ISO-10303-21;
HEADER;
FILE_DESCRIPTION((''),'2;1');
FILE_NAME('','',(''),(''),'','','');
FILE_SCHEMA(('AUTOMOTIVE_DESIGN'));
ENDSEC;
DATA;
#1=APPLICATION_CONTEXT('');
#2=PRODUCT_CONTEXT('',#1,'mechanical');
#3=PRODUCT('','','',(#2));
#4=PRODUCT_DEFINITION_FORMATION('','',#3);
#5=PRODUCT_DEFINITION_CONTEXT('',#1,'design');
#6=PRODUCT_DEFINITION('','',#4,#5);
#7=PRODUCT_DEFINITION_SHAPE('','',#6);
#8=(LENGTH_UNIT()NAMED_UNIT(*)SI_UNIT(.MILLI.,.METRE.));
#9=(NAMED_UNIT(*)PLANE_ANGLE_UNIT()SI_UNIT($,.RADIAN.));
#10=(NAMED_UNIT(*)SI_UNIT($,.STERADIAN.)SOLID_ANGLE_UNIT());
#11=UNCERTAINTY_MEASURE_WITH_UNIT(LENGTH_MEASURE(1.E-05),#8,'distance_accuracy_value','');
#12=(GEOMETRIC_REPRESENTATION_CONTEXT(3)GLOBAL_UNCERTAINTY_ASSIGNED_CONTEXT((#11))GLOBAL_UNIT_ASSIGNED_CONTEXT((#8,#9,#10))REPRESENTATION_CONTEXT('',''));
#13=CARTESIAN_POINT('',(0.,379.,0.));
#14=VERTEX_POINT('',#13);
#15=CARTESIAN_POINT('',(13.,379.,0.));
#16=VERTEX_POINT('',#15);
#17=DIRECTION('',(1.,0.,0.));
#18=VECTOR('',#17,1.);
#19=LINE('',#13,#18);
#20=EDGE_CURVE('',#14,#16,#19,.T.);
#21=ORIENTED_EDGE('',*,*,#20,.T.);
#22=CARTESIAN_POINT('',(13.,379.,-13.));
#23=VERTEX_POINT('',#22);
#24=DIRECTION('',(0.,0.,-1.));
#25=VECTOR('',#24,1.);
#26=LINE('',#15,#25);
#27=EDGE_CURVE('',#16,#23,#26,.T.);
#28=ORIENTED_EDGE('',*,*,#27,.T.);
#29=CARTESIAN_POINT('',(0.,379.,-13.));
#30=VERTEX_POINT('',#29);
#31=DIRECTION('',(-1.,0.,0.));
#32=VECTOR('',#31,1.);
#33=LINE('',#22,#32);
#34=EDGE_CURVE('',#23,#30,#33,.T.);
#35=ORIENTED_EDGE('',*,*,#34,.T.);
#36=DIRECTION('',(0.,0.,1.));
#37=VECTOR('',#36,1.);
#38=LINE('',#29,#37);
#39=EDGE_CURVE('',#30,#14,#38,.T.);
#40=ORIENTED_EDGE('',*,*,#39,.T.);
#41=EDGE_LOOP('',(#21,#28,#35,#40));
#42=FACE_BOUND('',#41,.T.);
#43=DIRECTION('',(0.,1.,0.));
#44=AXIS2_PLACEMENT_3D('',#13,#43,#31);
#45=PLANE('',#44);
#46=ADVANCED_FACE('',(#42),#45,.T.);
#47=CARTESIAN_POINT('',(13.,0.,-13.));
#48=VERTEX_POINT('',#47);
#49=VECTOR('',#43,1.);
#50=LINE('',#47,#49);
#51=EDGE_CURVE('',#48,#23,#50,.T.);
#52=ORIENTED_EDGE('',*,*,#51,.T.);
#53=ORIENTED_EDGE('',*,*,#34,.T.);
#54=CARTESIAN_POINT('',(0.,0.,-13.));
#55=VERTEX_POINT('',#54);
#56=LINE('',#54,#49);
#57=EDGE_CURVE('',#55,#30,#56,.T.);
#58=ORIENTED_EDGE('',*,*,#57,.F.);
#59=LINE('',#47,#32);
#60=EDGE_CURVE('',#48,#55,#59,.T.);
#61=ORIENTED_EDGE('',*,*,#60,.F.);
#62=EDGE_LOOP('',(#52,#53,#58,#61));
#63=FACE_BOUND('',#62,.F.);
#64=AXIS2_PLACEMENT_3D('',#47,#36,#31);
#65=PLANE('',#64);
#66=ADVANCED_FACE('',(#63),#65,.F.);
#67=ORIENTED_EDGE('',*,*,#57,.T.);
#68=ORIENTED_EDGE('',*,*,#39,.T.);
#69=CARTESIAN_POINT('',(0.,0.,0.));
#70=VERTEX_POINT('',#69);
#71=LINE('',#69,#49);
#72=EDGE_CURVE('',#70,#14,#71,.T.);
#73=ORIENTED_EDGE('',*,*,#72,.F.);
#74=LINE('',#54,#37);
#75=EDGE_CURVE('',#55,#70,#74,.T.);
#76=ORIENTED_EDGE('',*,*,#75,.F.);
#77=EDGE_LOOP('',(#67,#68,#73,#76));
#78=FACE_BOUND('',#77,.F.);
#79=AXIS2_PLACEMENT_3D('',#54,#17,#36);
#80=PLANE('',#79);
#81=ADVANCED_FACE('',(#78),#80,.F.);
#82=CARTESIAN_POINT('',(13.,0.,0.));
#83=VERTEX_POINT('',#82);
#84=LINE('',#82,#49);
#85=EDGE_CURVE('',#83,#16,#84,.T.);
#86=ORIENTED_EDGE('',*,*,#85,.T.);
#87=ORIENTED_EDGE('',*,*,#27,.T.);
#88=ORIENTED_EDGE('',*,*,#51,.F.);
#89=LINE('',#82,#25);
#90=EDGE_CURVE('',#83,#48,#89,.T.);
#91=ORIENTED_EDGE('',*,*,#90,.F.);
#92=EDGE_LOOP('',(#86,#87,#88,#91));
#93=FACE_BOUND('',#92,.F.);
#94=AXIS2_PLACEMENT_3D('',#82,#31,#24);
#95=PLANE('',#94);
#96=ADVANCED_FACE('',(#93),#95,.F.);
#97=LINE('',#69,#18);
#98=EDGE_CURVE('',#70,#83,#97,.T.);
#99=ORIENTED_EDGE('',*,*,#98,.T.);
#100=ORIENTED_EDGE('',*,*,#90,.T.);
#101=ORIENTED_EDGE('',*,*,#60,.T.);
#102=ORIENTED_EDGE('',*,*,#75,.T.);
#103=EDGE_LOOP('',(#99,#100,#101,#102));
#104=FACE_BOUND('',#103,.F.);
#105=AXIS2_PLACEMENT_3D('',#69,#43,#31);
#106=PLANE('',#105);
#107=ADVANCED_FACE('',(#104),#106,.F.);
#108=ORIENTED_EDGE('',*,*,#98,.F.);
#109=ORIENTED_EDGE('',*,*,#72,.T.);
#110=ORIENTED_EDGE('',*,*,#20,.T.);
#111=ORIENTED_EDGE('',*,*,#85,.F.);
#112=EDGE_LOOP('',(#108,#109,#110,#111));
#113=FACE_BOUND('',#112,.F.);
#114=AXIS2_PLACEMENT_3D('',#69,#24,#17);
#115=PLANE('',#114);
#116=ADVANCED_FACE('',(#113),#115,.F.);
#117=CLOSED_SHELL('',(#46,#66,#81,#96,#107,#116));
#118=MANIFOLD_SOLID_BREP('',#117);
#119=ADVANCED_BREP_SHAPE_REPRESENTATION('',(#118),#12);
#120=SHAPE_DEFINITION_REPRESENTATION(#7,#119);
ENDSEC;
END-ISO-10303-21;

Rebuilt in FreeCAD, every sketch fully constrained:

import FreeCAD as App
import Part
import Sketcher

V = App.Vector


def add_polygon(sketch, points):
    """Adds a closed chain of lines whose ends are joined by coincident constraints."""
    first, n = sketch.GeometryCount, len(points)
    for a, b in zip(points, points[1:] + points[:1]):
        sketch.addGeometry(Part.LineSegment(App.Vector(*a, 0), App.Vector(*b, 0)), False)
    for i in range(n):
        sketch.addConstraint(Sketcher.Constraint("Coincident", first + i, 2, first + (i + 1) % n, 1))

doc = App.newDocument("Part")
params = doc.addObject("Spreadsheet::Sheet", "Params")
for row, (alias, value) in enumerate([
    ("sketch1_width", "13 mm"),
    ("pad1_length", "379 mm"),
], start=1):
    params.set(f"A{row}", alias)
    params.set(f"B{row}", "=" + value)
    params.setAlias(f"B{row}", alias)

body = doc.addObject("PartDesign::Body", "Body")

sketch1 = body.newObject("Sketcher::SketchObject", "Sketch")
sketch1.AttachmentSupport = (doc.getObject("XZ_Plane"), [""])
sketch1.MapMode = "FlatFace"
add_polygon(sketch1, [(0, -13), (0, 0), (13, 0), (13, -13)])
sketch1.addConstraint([
    Sketcher.Constraint("Vertical", 0),
    Sketcher.Constraint("Horizontal", 1),
    Sketcher.Constraint("Vertical", 2),
    Sketcher.Constraint("Horizontal", 3),
    Sketcher.Constraint("Coincident", 0, 2, -1, 1),
    Sketcher.Constraint("Equal", 3, 0),
    Sketcher.Constraint("DistanceX", 1, 1, 1, 2, 13.0),
])
sketch1.setExpression("Constraints[10]", "Params.sketch1_width")
pad1 = body.newObject("PartDesign::Pad", "Pad")
pad1.Profile = sketch1
pad1.setExpression("Length", "Params.pad1_length")
pad1.Reversed = True

doc.recompute()
